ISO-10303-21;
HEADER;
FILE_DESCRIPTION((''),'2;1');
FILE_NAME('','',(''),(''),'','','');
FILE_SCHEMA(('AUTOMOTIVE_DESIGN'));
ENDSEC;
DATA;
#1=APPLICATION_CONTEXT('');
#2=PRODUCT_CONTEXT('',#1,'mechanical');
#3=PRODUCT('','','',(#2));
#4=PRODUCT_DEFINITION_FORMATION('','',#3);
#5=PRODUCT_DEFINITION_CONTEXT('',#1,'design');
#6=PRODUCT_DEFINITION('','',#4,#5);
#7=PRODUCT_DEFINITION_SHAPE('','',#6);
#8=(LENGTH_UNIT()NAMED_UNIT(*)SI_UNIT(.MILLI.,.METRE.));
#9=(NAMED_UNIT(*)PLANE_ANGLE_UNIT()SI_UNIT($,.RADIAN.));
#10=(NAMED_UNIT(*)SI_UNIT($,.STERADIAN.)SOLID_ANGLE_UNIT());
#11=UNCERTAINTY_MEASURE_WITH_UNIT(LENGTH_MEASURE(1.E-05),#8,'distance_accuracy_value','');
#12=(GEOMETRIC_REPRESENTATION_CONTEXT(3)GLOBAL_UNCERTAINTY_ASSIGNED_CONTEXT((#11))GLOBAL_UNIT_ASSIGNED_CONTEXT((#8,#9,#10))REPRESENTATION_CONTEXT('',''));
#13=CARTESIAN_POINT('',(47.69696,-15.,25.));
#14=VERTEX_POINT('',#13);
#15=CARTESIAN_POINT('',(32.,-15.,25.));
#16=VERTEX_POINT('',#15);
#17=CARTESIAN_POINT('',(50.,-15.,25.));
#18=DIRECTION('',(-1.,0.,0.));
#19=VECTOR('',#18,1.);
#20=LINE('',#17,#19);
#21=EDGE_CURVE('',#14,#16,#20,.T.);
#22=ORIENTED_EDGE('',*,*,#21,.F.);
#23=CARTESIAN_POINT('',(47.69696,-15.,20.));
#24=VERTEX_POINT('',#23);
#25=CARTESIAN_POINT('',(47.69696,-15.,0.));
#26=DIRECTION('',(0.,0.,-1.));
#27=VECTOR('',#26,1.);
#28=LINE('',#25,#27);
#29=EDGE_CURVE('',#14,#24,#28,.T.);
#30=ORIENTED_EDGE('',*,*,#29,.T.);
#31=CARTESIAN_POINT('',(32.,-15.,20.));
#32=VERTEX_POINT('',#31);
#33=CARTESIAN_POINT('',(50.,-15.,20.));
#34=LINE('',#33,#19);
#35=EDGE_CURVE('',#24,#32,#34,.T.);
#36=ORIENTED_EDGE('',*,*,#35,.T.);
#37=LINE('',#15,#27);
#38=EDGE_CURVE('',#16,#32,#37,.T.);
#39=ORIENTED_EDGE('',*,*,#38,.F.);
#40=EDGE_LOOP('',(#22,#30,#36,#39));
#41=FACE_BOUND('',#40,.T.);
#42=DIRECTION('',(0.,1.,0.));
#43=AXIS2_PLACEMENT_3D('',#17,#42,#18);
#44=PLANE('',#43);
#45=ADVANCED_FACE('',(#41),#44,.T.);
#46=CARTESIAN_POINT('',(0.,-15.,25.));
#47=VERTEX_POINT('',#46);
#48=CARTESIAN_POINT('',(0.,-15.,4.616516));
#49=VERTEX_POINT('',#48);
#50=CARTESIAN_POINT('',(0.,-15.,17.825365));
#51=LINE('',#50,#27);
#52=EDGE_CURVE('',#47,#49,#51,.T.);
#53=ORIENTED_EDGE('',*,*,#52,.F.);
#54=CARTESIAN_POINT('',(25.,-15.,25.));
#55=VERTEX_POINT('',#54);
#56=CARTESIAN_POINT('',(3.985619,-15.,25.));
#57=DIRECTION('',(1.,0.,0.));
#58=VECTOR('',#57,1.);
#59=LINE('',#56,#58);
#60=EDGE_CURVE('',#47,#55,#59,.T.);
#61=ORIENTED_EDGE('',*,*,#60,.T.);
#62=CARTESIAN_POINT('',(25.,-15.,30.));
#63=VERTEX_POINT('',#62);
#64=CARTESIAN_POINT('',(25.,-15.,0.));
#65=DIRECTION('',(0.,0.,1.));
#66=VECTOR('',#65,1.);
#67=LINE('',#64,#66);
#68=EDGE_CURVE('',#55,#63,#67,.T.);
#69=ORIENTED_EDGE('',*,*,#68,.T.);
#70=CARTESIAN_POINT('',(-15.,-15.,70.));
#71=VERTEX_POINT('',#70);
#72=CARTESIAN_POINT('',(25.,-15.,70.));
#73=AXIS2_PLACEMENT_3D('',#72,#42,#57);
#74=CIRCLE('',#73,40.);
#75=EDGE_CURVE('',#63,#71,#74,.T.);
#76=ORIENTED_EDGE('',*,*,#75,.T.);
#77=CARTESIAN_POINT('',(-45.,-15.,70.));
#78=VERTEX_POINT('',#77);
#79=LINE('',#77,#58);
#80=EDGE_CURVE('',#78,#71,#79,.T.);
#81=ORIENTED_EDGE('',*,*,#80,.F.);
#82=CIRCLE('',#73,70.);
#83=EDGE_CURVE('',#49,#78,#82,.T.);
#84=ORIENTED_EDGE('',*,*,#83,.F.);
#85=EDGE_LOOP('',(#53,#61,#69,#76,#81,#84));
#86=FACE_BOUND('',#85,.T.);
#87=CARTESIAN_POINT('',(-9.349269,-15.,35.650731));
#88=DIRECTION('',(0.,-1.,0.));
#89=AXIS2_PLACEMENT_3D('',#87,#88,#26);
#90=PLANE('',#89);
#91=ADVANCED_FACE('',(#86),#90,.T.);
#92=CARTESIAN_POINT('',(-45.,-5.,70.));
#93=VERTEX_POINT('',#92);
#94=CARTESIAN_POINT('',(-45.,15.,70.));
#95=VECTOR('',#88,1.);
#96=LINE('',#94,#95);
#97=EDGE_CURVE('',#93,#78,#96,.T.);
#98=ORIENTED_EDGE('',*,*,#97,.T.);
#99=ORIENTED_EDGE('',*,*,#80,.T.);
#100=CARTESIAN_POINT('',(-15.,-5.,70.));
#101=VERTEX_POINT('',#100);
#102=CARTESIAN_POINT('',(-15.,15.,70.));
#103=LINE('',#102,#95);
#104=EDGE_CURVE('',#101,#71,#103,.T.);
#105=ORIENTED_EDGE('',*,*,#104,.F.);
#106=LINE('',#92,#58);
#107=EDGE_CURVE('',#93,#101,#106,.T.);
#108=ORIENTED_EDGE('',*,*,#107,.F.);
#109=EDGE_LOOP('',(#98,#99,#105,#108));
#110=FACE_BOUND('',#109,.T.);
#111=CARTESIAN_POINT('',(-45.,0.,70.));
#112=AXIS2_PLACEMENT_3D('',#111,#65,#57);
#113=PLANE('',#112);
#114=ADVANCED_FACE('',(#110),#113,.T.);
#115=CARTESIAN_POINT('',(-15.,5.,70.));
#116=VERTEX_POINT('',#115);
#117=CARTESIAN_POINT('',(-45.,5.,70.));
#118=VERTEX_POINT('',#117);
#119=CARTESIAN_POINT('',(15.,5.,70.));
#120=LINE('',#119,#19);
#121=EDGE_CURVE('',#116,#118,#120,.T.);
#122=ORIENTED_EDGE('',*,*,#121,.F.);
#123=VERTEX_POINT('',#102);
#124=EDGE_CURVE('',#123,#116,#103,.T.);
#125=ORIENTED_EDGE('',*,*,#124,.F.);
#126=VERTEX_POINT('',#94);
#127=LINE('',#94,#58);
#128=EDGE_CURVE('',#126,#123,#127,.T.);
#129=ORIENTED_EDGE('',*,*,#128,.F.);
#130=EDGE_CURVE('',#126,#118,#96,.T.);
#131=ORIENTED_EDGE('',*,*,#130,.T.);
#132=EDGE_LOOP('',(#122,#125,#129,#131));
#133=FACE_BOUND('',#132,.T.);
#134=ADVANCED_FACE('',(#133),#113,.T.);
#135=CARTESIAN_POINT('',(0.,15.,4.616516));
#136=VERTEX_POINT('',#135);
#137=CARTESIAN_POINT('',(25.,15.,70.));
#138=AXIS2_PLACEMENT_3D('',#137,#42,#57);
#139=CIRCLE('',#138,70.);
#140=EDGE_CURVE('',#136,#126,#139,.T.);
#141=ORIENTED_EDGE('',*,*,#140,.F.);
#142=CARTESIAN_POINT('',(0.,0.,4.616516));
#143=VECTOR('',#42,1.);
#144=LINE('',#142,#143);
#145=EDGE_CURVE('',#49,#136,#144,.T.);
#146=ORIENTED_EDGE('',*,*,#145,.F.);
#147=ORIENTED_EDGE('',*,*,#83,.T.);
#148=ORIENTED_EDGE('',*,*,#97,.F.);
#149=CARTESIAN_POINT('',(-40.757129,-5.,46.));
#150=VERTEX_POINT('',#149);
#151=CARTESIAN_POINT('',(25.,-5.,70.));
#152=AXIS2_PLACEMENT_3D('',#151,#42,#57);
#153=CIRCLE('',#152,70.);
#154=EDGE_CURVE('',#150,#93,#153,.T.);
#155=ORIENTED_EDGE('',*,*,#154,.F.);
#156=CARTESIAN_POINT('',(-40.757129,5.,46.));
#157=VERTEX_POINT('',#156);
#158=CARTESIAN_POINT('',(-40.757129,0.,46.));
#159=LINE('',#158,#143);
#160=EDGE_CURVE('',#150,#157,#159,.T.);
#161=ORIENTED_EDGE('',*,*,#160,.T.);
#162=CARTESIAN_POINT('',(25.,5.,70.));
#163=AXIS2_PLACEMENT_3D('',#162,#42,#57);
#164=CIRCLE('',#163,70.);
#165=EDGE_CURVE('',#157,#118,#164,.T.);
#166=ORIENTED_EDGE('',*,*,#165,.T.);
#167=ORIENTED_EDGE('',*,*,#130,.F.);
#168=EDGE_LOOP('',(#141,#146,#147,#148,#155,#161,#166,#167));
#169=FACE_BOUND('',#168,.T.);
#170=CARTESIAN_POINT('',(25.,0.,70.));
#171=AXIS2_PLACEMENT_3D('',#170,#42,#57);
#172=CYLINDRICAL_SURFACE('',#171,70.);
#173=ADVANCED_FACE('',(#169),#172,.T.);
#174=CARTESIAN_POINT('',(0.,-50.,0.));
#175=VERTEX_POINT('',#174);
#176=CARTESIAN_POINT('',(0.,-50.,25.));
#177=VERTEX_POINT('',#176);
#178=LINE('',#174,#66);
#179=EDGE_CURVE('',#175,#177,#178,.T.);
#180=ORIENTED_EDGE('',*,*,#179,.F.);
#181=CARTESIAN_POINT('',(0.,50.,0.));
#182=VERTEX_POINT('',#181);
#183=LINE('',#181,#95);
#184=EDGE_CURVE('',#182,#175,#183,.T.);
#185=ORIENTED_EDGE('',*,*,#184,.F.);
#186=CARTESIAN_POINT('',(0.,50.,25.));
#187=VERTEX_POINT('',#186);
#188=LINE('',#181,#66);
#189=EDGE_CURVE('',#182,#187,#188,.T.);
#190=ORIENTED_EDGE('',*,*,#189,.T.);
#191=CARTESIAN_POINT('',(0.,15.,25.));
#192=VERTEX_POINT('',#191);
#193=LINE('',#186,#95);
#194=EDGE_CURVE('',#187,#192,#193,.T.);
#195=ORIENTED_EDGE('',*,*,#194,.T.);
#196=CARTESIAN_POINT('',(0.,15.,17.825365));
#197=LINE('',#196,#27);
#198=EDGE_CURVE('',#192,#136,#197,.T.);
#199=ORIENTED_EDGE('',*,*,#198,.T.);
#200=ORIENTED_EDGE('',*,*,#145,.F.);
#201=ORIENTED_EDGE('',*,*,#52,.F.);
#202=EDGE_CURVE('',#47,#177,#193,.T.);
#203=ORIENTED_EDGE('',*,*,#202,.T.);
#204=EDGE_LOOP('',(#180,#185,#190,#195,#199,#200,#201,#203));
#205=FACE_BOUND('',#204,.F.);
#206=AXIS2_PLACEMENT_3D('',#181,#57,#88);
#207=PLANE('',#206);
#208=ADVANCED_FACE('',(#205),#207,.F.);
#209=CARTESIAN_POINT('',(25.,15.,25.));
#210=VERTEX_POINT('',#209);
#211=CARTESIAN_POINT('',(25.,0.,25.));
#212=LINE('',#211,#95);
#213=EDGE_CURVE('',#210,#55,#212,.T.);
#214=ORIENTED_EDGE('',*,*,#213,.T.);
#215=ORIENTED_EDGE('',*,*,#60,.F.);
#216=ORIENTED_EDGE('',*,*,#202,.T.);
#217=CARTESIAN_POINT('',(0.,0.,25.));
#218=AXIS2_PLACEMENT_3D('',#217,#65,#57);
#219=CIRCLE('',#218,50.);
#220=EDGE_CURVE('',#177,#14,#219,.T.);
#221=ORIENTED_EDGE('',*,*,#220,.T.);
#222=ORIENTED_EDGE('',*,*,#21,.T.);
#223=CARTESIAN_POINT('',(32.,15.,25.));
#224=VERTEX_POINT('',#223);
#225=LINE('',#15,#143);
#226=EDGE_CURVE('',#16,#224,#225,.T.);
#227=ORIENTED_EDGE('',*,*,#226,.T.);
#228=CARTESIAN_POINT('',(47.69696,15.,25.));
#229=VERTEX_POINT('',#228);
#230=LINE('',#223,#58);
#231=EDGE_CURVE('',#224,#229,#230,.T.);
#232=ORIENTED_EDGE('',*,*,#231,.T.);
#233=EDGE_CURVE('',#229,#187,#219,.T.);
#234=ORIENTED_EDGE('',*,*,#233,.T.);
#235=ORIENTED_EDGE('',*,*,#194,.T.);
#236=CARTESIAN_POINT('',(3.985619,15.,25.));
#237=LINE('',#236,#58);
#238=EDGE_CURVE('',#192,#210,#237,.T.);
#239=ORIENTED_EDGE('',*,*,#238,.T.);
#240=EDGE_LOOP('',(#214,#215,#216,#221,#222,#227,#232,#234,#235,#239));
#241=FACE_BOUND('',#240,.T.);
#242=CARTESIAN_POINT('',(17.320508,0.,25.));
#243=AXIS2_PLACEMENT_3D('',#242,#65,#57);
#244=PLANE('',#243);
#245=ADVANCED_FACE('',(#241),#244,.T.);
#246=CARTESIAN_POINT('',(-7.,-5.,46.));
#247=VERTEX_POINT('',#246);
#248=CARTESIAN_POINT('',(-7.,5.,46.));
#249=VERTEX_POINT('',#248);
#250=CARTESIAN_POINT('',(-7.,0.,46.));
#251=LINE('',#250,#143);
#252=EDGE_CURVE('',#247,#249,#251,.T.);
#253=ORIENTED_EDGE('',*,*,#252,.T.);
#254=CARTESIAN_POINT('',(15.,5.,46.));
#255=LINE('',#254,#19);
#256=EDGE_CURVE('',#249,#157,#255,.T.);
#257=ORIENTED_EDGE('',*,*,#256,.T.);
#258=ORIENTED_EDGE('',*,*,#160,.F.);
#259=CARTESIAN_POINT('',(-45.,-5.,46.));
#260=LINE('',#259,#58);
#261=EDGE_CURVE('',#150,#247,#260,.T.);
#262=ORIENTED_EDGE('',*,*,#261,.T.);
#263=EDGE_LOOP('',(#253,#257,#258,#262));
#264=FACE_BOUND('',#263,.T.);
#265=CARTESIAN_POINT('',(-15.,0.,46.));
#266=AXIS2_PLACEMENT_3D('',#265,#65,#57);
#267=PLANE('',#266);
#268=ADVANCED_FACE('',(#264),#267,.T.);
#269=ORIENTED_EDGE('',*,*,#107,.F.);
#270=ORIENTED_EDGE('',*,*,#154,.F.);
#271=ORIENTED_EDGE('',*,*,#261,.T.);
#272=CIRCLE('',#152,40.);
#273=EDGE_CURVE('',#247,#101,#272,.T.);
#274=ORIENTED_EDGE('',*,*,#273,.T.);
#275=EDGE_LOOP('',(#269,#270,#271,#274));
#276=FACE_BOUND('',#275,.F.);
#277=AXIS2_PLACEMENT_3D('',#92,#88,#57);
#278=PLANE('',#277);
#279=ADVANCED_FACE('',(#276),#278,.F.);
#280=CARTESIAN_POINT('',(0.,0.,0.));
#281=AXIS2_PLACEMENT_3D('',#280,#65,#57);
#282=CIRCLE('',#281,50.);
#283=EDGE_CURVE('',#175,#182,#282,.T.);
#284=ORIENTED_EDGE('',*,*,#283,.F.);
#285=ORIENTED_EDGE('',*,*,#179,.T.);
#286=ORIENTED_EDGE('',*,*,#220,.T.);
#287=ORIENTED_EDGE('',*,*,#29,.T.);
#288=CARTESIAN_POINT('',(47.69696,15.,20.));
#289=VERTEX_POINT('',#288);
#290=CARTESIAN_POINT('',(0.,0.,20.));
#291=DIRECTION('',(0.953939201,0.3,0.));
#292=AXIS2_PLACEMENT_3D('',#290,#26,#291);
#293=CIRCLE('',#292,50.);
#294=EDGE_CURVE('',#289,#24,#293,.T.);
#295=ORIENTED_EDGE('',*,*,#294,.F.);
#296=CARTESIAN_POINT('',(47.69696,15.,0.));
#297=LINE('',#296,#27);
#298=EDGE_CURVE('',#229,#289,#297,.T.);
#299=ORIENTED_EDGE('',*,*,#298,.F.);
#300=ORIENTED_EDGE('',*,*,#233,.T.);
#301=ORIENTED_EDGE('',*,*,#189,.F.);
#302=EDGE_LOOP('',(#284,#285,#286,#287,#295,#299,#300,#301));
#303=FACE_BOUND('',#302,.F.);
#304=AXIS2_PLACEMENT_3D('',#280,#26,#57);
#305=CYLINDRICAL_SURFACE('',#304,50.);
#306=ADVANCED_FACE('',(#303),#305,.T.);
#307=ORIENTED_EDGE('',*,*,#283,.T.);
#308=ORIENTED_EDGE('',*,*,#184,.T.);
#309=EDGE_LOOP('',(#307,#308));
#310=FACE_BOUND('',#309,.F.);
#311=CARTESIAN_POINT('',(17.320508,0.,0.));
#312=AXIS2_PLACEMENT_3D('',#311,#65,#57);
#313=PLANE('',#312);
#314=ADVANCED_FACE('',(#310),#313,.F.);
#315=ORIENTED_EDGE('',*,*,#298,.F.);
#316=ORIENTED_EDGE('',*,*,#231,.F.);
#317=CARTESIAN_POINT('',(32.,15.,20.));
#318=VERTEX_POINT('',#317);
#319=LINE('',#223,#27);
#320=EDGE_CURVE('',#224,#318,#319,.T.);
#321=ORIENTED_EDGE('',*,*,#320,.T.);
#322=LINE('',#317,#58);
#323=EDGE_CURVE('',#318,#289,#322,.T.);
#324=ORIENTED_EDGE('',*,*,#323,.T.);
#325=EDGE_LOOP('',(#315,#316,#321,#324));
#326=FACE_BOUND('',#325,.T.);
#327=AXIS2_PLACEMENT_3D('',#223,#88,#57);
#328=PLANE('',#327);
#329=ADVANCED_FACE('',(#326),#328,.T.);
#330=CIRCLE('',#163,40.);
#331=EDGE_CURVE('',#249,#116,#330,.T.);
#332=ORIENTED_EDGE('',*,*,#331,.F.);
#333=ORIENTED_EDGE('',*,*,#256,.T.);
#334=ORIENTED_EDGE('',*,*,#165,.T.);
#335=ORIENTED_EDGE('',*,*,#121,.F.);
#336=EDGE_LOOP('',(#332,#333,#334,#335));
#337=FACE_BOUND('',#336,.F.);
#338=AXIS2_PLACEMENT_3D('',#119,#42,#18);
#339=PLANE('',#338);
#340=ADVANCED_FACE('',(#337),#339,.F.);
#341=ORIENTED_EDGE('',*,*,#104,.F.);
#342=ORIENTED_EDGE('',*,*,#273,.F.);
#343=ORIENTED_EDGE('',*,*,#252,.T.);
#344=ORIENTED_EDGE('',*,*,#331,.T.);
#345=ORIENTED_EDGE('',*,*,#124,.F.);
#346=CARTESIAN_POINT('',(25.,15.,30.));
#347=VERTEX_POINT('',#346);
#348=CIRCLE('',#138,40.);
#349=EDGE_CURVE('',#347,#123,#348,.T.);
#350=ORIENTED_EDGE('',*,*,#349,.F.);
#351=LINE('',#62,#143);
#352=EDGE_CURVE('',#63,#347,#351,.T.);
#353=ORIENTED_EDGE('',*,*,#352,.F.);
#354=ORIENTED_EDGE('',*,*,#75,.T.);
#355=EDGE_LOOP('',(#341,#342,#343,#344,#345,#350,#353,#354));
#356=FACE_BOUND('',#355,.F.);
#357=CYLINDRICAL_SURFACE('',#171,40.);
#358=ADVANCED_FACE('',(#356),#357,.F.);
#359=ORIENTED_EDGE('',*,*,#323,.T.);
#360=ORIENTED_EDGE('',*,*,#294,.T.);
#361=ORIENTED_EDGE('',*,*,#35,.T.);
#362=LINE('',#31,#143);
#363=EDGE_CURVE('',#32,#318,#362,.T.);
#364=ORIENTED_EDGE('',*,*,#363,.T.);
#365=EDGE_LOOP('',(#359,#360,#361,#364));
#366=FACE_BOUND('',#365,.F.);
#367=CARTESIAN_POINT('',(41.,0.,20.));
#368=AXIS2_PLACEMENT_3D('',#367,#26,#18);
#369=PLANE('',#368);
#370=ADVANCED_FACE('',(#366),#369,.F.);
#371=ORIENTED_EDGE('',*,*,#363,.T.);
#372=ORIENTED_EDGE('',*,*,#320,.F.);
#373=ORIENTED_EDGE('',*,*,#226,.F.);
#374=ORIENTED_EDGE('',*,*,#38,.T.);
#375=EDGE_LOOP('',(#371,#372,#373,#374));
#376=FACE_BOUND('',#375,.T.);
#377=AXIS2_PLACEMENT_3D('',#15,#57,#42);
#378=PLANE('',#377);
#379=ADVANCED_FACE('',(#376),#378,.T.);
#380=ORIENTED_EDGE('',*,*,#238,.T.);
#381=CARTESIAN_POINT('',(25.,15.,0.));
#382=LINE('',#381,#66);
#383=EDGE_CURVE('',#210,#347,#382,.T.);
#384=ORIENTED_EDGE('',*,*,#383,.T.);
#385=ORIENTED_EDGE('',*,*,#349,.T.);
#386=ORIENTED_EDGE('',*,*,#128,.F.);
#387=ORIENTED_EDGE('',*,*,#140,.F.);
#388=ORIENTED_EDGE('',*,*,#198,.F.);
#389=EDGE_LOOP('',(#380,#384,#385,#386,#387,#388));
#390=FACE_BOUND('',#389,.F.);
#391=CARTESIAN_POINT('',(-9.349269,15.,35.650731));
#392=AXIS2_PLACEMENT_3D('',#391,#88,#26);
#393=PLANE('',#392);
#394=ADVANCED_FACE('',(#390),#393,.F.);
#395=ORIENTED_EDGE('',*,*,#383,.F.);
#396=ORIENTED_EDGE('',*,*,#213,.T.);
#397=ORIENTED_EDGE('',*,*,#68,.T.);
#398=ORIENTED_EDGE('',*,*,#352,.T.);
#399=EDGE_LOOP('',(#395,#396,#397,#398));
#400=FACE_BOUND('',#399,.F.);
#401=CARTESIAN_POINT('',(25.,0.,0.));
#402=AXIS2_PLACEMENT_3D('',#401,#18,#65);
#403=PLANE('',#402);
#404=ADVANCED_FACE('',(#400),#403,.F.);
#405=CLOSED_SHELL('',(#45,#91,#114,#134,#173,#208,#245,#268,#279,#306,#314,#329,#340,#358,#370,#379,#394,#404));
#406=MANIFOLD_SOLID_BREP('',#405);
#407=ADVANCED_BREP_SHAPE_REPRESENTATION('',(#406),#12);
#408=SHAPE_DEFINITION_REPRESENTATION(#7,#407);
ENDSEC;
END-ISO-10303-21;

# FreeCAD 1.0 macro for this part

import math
import FreeCAD as App
import Part
import Sketcher
from FreeCAD import Vector

doc = App.newDocument("Part")
body = doc.addObject("PartDesign::Body", "Body")

# Sketch on XY plane
sketch1 = doc.addObject("Sketcher::SketchObject", "Sketch")
body.addObject(sketch1)
sketch1.AttachmentSupport = (doc.XY_Plane, [""])
sketch1.MapMode = "FlatFace"
sketch1.addGeometry(Part.LineSegment(Vector(0, 50, 0), Vector(0, -50, 0)), False)
sketch1.addGeometry(Part.ArcOfCircle(Part.Circle(Vector(0, 0, 0), Vector(0, 0, 1), 50), math.radians(-90), math.radians(90)), False)
sketch1.addConstraint(Sketcher.Constraint("Coincident", 0, 1, 1, 2))
sketch1.addConstraint(Sketcher.Constraint("Coincident", 1, 1, 0, 2))
sketch1.addConstraint(Sketcher.Constraint("Vertical", 0))
sketch1.addConstraint(Sketcher.Constraint("Coincident", 1, 3, -1, 1))
sketch1.addConstraint(Sketcher.Constraint("PointOnObject", 0, 1, -2))
sketch1.addConstraint(Sketcher.Constraint("Radius", 1, 50.0))
pad1 = doc.addObject("PartDesign::Pad", "Pad")
body.addObject(pad1)
pad1.Profile = sketch1
pad1.Length = 25

# Sketch on XZ plane
sketch2 = doc.addObject("Sketcher::SketchObject", "Sketch001")
body.addObject(sketch2)
sketch2.AttachmentSupport = (doc.XZ_Plane, [""])
sketch2.MapMode = "FlatFace"
sketch2.addGeometry(Part.LineSegment(Vector(25, 0, 0), Vector(25, 30, 0)), False)
sketch2.addGeometry(Part.ArcOfCircle(Part.Circle(Vector(25, 70, 0), Vector(0, 0, 1), 40), math.radians(180), math.radians(270)), False)
sketch2.addGeometry(Part.LineSegment(Vector(-15, 70, 0), Vector(-45, 70, 0)), False)
sketch2.addGeometry(Part.ArcOfCircle(Part.Circle(Vector(25, 70, 0), Vector(0, 0, 1), 70), math.radians(180), math.radians(270)), False)
sketch2.addConstraint(Sketcher.Constraint("Coincident", 0, 2, 1, 2))
sketch2.addConstraint(Sketcher.Constraint("Coincident", 1, 1, 2, 1))
sketch2.addConstraint(Sketcher.Constraint("Coincident", 2, 2, 3, 1))
sketch2.addConstraint(Sketcher.Constraint("Coincident", 3, 2, 0, 1))
sketch2.addConstraint(Sketcher.Constraint("Vertical", 0))
sketch2.addConstraint(Sketcher.Constraint("Horizontal", 2))
sketch2.addConstraint(Sketcher.Constraint("Coincident", 3, 3, 1, 3))
sketch2.addConstraint(Sketcher.Constraint("PointOnObject", 3, 2, -1))
sketch2.addConstraint(Sketcher.Constraint("Horizontal", 3, 3, 1, 1))
sketch2.addConstraint(Sketcher.Constraint("Vertical", 3, 3, 0, 2))
sketch2.addConstraint(Sketcher.Constraint("Radius", 1, 40.0))
sketch2.addConstraint(Sketcher.Constraint("Radius", 3, 70.0))
sketch2.addConstraint(Sketcher.Constraint("DistanceX", -1, 1, 1, 3, 25.0))
pad2 = doc.addObject("PartDesign::Pad", "Pad001")
body.addObject(pad2)
pad2.Profile = sketch2
pad2.Length = 30
pad2.Midplane = True

# Sketch on XY plane
sketch3 = doc.addObject("Sketcher::SketchObject", "Sketch002")
body.addObject(sketch3)
sketch3.AttachmentSupport = (doc.XY_Plane, [""])
sketch3.MapMode = "FlatFace"
sketch3.AttachmentOffset = App.Placement(Vector(0, 0, 70), App.Rotation())
sketch3.addGeometry(Part.LineSegment(Vector(15, -5, 0), Vector(15, 5, 0)), False)
sketch3.addGeometry(Part.LineSegment(Vector(15, 5, 0), Vector(-45, 5, 0)), False)
sketch3.addGeometry(Part.LineSegment(Vector(-45, 5, 0), Vector(-45, -5, 0)), False)
sketch3.addGeometry(Part.LineSegment(Vector(-45, -5, 0), Vector(15, -5, 0)), False)
sketch3.addConstraint(Sketcher.Constraint("Coincident", 0, 2, 1, 1))
sketch3.addConstraint(Sketcher.Constraint("Coincident", 1, 2, 2, 1))
sketch3.addConstraint(Sketcher.Constraint("Coincident", 2, 2, 3, 1))
sketch3.addConstraint(Sketcher.Constraint("Coincident", 3, 2, 0, 1))
sketch3.addConstraint(Sketcher.Constraint("Vertical", 0))
sketch3.addConstraint(Sketcher.Constraint("Horizontal", 1))
sketch3.addConstraint(Sketcher.Constraint("Vertical", 2))
sketch3.addConstraint(Sketcher.Constraint("Horizontal", 3))
sketch3.addConstraint(Sketcher.Constraint("DistanceX", 1, 2, 1, 1, 60.0))
sketch3.addConstraint(Sketcher.Constraint("DistanceY", 0, 1, 0, 2, 10.0))
sketch3.addConstraint(Sketcher.Constraint("DistanceX", -1, 1, 0, 2, 15.0))
sketch3.addConstraint(Sketcher.Constraint("DistanceY", -1, 1, 0, 2, 5.0))
pocket1 = doc.addObject("PartDesign::Pocket", "Pocket")
body.addObject(pocket1)
pocket1.Profile = sketch3
pocket1.Length = 24

# Sketch on XY plane
sketch4 = doc.addObject("Sketcher::SketchObject", "Sketch003")
body.addObject(sketch4)
sketch4.AttachmentSupport = (doc.XY_Plane, [""])
sketch4.MapMode = "FlatFace"
sketch4.AttachmentOffset = App.Placement(Vector(0, 0, 25), App.Rotation())
sketch4.addGeometry(Part.LineSegment(Vector(50, 15, 0), Vector(32, 15, 0)), False)
sketch4.addGeometry(Part.LineSegment(Vector(32, 15, 0), Vector(32, -15, 0)), False)
sketch4.addGeometry(Part.LineSegment(Vector(32, -15, 0), Vector(50, -15, 0)), False)
sketch4.addGeometry(Part.LineSegment(Vector(50, -15, 0), Vector(50, 15, 0)), False)
sketch4.addConstraint(Sketcher.Constraint("Coincident", 0, 2, 1, 1))
sketch4.addConstraint(Sketcher.Constraint("Coincident", 1, 2, 2, 1))
sketch4.addConstraint(Sketcher.Constraint("Coincident", 2, 2, 3, 1))
sketch4.addConstraint(Sketcher.Constraint("Coincident", 3, 2, 0, 1))
sketch4.addConstraint(Sketcher.Constraint("Horizontal", 0))
sketch4.addConstraint(Sketcher.Constraint("Vertical", 1))
sketch4.addConstraint(Sketcher.Constraint("Horizontal", 2))
sketch4.addConstraint(Sketcher.Constraint("Vertical", 3))
sketch4.addConstraint(Sketcher.Constraint("DistanceX", 0, 2, 0, 1, 18.0))
sketch4.addConstraint(Sketcher.Constraint("DistanceY", 1, 2, 1, 1, 30.0))
sketch4.addConstraint(Sketcher.Constraint("DistanceX", -1, 1, 0, 2, 32.0))
sketch4.addConstraint(Sketcher.Constraint("DistanceY", -1, 1, 0, 2, 15.0))
pocket2 = doc.addObject("PartDesign::Pocket", "Pocket001")
body.addObject(pocket2)
pocket2.Profile = sketch4
pocket2.Length = 5

doc.recompute()
